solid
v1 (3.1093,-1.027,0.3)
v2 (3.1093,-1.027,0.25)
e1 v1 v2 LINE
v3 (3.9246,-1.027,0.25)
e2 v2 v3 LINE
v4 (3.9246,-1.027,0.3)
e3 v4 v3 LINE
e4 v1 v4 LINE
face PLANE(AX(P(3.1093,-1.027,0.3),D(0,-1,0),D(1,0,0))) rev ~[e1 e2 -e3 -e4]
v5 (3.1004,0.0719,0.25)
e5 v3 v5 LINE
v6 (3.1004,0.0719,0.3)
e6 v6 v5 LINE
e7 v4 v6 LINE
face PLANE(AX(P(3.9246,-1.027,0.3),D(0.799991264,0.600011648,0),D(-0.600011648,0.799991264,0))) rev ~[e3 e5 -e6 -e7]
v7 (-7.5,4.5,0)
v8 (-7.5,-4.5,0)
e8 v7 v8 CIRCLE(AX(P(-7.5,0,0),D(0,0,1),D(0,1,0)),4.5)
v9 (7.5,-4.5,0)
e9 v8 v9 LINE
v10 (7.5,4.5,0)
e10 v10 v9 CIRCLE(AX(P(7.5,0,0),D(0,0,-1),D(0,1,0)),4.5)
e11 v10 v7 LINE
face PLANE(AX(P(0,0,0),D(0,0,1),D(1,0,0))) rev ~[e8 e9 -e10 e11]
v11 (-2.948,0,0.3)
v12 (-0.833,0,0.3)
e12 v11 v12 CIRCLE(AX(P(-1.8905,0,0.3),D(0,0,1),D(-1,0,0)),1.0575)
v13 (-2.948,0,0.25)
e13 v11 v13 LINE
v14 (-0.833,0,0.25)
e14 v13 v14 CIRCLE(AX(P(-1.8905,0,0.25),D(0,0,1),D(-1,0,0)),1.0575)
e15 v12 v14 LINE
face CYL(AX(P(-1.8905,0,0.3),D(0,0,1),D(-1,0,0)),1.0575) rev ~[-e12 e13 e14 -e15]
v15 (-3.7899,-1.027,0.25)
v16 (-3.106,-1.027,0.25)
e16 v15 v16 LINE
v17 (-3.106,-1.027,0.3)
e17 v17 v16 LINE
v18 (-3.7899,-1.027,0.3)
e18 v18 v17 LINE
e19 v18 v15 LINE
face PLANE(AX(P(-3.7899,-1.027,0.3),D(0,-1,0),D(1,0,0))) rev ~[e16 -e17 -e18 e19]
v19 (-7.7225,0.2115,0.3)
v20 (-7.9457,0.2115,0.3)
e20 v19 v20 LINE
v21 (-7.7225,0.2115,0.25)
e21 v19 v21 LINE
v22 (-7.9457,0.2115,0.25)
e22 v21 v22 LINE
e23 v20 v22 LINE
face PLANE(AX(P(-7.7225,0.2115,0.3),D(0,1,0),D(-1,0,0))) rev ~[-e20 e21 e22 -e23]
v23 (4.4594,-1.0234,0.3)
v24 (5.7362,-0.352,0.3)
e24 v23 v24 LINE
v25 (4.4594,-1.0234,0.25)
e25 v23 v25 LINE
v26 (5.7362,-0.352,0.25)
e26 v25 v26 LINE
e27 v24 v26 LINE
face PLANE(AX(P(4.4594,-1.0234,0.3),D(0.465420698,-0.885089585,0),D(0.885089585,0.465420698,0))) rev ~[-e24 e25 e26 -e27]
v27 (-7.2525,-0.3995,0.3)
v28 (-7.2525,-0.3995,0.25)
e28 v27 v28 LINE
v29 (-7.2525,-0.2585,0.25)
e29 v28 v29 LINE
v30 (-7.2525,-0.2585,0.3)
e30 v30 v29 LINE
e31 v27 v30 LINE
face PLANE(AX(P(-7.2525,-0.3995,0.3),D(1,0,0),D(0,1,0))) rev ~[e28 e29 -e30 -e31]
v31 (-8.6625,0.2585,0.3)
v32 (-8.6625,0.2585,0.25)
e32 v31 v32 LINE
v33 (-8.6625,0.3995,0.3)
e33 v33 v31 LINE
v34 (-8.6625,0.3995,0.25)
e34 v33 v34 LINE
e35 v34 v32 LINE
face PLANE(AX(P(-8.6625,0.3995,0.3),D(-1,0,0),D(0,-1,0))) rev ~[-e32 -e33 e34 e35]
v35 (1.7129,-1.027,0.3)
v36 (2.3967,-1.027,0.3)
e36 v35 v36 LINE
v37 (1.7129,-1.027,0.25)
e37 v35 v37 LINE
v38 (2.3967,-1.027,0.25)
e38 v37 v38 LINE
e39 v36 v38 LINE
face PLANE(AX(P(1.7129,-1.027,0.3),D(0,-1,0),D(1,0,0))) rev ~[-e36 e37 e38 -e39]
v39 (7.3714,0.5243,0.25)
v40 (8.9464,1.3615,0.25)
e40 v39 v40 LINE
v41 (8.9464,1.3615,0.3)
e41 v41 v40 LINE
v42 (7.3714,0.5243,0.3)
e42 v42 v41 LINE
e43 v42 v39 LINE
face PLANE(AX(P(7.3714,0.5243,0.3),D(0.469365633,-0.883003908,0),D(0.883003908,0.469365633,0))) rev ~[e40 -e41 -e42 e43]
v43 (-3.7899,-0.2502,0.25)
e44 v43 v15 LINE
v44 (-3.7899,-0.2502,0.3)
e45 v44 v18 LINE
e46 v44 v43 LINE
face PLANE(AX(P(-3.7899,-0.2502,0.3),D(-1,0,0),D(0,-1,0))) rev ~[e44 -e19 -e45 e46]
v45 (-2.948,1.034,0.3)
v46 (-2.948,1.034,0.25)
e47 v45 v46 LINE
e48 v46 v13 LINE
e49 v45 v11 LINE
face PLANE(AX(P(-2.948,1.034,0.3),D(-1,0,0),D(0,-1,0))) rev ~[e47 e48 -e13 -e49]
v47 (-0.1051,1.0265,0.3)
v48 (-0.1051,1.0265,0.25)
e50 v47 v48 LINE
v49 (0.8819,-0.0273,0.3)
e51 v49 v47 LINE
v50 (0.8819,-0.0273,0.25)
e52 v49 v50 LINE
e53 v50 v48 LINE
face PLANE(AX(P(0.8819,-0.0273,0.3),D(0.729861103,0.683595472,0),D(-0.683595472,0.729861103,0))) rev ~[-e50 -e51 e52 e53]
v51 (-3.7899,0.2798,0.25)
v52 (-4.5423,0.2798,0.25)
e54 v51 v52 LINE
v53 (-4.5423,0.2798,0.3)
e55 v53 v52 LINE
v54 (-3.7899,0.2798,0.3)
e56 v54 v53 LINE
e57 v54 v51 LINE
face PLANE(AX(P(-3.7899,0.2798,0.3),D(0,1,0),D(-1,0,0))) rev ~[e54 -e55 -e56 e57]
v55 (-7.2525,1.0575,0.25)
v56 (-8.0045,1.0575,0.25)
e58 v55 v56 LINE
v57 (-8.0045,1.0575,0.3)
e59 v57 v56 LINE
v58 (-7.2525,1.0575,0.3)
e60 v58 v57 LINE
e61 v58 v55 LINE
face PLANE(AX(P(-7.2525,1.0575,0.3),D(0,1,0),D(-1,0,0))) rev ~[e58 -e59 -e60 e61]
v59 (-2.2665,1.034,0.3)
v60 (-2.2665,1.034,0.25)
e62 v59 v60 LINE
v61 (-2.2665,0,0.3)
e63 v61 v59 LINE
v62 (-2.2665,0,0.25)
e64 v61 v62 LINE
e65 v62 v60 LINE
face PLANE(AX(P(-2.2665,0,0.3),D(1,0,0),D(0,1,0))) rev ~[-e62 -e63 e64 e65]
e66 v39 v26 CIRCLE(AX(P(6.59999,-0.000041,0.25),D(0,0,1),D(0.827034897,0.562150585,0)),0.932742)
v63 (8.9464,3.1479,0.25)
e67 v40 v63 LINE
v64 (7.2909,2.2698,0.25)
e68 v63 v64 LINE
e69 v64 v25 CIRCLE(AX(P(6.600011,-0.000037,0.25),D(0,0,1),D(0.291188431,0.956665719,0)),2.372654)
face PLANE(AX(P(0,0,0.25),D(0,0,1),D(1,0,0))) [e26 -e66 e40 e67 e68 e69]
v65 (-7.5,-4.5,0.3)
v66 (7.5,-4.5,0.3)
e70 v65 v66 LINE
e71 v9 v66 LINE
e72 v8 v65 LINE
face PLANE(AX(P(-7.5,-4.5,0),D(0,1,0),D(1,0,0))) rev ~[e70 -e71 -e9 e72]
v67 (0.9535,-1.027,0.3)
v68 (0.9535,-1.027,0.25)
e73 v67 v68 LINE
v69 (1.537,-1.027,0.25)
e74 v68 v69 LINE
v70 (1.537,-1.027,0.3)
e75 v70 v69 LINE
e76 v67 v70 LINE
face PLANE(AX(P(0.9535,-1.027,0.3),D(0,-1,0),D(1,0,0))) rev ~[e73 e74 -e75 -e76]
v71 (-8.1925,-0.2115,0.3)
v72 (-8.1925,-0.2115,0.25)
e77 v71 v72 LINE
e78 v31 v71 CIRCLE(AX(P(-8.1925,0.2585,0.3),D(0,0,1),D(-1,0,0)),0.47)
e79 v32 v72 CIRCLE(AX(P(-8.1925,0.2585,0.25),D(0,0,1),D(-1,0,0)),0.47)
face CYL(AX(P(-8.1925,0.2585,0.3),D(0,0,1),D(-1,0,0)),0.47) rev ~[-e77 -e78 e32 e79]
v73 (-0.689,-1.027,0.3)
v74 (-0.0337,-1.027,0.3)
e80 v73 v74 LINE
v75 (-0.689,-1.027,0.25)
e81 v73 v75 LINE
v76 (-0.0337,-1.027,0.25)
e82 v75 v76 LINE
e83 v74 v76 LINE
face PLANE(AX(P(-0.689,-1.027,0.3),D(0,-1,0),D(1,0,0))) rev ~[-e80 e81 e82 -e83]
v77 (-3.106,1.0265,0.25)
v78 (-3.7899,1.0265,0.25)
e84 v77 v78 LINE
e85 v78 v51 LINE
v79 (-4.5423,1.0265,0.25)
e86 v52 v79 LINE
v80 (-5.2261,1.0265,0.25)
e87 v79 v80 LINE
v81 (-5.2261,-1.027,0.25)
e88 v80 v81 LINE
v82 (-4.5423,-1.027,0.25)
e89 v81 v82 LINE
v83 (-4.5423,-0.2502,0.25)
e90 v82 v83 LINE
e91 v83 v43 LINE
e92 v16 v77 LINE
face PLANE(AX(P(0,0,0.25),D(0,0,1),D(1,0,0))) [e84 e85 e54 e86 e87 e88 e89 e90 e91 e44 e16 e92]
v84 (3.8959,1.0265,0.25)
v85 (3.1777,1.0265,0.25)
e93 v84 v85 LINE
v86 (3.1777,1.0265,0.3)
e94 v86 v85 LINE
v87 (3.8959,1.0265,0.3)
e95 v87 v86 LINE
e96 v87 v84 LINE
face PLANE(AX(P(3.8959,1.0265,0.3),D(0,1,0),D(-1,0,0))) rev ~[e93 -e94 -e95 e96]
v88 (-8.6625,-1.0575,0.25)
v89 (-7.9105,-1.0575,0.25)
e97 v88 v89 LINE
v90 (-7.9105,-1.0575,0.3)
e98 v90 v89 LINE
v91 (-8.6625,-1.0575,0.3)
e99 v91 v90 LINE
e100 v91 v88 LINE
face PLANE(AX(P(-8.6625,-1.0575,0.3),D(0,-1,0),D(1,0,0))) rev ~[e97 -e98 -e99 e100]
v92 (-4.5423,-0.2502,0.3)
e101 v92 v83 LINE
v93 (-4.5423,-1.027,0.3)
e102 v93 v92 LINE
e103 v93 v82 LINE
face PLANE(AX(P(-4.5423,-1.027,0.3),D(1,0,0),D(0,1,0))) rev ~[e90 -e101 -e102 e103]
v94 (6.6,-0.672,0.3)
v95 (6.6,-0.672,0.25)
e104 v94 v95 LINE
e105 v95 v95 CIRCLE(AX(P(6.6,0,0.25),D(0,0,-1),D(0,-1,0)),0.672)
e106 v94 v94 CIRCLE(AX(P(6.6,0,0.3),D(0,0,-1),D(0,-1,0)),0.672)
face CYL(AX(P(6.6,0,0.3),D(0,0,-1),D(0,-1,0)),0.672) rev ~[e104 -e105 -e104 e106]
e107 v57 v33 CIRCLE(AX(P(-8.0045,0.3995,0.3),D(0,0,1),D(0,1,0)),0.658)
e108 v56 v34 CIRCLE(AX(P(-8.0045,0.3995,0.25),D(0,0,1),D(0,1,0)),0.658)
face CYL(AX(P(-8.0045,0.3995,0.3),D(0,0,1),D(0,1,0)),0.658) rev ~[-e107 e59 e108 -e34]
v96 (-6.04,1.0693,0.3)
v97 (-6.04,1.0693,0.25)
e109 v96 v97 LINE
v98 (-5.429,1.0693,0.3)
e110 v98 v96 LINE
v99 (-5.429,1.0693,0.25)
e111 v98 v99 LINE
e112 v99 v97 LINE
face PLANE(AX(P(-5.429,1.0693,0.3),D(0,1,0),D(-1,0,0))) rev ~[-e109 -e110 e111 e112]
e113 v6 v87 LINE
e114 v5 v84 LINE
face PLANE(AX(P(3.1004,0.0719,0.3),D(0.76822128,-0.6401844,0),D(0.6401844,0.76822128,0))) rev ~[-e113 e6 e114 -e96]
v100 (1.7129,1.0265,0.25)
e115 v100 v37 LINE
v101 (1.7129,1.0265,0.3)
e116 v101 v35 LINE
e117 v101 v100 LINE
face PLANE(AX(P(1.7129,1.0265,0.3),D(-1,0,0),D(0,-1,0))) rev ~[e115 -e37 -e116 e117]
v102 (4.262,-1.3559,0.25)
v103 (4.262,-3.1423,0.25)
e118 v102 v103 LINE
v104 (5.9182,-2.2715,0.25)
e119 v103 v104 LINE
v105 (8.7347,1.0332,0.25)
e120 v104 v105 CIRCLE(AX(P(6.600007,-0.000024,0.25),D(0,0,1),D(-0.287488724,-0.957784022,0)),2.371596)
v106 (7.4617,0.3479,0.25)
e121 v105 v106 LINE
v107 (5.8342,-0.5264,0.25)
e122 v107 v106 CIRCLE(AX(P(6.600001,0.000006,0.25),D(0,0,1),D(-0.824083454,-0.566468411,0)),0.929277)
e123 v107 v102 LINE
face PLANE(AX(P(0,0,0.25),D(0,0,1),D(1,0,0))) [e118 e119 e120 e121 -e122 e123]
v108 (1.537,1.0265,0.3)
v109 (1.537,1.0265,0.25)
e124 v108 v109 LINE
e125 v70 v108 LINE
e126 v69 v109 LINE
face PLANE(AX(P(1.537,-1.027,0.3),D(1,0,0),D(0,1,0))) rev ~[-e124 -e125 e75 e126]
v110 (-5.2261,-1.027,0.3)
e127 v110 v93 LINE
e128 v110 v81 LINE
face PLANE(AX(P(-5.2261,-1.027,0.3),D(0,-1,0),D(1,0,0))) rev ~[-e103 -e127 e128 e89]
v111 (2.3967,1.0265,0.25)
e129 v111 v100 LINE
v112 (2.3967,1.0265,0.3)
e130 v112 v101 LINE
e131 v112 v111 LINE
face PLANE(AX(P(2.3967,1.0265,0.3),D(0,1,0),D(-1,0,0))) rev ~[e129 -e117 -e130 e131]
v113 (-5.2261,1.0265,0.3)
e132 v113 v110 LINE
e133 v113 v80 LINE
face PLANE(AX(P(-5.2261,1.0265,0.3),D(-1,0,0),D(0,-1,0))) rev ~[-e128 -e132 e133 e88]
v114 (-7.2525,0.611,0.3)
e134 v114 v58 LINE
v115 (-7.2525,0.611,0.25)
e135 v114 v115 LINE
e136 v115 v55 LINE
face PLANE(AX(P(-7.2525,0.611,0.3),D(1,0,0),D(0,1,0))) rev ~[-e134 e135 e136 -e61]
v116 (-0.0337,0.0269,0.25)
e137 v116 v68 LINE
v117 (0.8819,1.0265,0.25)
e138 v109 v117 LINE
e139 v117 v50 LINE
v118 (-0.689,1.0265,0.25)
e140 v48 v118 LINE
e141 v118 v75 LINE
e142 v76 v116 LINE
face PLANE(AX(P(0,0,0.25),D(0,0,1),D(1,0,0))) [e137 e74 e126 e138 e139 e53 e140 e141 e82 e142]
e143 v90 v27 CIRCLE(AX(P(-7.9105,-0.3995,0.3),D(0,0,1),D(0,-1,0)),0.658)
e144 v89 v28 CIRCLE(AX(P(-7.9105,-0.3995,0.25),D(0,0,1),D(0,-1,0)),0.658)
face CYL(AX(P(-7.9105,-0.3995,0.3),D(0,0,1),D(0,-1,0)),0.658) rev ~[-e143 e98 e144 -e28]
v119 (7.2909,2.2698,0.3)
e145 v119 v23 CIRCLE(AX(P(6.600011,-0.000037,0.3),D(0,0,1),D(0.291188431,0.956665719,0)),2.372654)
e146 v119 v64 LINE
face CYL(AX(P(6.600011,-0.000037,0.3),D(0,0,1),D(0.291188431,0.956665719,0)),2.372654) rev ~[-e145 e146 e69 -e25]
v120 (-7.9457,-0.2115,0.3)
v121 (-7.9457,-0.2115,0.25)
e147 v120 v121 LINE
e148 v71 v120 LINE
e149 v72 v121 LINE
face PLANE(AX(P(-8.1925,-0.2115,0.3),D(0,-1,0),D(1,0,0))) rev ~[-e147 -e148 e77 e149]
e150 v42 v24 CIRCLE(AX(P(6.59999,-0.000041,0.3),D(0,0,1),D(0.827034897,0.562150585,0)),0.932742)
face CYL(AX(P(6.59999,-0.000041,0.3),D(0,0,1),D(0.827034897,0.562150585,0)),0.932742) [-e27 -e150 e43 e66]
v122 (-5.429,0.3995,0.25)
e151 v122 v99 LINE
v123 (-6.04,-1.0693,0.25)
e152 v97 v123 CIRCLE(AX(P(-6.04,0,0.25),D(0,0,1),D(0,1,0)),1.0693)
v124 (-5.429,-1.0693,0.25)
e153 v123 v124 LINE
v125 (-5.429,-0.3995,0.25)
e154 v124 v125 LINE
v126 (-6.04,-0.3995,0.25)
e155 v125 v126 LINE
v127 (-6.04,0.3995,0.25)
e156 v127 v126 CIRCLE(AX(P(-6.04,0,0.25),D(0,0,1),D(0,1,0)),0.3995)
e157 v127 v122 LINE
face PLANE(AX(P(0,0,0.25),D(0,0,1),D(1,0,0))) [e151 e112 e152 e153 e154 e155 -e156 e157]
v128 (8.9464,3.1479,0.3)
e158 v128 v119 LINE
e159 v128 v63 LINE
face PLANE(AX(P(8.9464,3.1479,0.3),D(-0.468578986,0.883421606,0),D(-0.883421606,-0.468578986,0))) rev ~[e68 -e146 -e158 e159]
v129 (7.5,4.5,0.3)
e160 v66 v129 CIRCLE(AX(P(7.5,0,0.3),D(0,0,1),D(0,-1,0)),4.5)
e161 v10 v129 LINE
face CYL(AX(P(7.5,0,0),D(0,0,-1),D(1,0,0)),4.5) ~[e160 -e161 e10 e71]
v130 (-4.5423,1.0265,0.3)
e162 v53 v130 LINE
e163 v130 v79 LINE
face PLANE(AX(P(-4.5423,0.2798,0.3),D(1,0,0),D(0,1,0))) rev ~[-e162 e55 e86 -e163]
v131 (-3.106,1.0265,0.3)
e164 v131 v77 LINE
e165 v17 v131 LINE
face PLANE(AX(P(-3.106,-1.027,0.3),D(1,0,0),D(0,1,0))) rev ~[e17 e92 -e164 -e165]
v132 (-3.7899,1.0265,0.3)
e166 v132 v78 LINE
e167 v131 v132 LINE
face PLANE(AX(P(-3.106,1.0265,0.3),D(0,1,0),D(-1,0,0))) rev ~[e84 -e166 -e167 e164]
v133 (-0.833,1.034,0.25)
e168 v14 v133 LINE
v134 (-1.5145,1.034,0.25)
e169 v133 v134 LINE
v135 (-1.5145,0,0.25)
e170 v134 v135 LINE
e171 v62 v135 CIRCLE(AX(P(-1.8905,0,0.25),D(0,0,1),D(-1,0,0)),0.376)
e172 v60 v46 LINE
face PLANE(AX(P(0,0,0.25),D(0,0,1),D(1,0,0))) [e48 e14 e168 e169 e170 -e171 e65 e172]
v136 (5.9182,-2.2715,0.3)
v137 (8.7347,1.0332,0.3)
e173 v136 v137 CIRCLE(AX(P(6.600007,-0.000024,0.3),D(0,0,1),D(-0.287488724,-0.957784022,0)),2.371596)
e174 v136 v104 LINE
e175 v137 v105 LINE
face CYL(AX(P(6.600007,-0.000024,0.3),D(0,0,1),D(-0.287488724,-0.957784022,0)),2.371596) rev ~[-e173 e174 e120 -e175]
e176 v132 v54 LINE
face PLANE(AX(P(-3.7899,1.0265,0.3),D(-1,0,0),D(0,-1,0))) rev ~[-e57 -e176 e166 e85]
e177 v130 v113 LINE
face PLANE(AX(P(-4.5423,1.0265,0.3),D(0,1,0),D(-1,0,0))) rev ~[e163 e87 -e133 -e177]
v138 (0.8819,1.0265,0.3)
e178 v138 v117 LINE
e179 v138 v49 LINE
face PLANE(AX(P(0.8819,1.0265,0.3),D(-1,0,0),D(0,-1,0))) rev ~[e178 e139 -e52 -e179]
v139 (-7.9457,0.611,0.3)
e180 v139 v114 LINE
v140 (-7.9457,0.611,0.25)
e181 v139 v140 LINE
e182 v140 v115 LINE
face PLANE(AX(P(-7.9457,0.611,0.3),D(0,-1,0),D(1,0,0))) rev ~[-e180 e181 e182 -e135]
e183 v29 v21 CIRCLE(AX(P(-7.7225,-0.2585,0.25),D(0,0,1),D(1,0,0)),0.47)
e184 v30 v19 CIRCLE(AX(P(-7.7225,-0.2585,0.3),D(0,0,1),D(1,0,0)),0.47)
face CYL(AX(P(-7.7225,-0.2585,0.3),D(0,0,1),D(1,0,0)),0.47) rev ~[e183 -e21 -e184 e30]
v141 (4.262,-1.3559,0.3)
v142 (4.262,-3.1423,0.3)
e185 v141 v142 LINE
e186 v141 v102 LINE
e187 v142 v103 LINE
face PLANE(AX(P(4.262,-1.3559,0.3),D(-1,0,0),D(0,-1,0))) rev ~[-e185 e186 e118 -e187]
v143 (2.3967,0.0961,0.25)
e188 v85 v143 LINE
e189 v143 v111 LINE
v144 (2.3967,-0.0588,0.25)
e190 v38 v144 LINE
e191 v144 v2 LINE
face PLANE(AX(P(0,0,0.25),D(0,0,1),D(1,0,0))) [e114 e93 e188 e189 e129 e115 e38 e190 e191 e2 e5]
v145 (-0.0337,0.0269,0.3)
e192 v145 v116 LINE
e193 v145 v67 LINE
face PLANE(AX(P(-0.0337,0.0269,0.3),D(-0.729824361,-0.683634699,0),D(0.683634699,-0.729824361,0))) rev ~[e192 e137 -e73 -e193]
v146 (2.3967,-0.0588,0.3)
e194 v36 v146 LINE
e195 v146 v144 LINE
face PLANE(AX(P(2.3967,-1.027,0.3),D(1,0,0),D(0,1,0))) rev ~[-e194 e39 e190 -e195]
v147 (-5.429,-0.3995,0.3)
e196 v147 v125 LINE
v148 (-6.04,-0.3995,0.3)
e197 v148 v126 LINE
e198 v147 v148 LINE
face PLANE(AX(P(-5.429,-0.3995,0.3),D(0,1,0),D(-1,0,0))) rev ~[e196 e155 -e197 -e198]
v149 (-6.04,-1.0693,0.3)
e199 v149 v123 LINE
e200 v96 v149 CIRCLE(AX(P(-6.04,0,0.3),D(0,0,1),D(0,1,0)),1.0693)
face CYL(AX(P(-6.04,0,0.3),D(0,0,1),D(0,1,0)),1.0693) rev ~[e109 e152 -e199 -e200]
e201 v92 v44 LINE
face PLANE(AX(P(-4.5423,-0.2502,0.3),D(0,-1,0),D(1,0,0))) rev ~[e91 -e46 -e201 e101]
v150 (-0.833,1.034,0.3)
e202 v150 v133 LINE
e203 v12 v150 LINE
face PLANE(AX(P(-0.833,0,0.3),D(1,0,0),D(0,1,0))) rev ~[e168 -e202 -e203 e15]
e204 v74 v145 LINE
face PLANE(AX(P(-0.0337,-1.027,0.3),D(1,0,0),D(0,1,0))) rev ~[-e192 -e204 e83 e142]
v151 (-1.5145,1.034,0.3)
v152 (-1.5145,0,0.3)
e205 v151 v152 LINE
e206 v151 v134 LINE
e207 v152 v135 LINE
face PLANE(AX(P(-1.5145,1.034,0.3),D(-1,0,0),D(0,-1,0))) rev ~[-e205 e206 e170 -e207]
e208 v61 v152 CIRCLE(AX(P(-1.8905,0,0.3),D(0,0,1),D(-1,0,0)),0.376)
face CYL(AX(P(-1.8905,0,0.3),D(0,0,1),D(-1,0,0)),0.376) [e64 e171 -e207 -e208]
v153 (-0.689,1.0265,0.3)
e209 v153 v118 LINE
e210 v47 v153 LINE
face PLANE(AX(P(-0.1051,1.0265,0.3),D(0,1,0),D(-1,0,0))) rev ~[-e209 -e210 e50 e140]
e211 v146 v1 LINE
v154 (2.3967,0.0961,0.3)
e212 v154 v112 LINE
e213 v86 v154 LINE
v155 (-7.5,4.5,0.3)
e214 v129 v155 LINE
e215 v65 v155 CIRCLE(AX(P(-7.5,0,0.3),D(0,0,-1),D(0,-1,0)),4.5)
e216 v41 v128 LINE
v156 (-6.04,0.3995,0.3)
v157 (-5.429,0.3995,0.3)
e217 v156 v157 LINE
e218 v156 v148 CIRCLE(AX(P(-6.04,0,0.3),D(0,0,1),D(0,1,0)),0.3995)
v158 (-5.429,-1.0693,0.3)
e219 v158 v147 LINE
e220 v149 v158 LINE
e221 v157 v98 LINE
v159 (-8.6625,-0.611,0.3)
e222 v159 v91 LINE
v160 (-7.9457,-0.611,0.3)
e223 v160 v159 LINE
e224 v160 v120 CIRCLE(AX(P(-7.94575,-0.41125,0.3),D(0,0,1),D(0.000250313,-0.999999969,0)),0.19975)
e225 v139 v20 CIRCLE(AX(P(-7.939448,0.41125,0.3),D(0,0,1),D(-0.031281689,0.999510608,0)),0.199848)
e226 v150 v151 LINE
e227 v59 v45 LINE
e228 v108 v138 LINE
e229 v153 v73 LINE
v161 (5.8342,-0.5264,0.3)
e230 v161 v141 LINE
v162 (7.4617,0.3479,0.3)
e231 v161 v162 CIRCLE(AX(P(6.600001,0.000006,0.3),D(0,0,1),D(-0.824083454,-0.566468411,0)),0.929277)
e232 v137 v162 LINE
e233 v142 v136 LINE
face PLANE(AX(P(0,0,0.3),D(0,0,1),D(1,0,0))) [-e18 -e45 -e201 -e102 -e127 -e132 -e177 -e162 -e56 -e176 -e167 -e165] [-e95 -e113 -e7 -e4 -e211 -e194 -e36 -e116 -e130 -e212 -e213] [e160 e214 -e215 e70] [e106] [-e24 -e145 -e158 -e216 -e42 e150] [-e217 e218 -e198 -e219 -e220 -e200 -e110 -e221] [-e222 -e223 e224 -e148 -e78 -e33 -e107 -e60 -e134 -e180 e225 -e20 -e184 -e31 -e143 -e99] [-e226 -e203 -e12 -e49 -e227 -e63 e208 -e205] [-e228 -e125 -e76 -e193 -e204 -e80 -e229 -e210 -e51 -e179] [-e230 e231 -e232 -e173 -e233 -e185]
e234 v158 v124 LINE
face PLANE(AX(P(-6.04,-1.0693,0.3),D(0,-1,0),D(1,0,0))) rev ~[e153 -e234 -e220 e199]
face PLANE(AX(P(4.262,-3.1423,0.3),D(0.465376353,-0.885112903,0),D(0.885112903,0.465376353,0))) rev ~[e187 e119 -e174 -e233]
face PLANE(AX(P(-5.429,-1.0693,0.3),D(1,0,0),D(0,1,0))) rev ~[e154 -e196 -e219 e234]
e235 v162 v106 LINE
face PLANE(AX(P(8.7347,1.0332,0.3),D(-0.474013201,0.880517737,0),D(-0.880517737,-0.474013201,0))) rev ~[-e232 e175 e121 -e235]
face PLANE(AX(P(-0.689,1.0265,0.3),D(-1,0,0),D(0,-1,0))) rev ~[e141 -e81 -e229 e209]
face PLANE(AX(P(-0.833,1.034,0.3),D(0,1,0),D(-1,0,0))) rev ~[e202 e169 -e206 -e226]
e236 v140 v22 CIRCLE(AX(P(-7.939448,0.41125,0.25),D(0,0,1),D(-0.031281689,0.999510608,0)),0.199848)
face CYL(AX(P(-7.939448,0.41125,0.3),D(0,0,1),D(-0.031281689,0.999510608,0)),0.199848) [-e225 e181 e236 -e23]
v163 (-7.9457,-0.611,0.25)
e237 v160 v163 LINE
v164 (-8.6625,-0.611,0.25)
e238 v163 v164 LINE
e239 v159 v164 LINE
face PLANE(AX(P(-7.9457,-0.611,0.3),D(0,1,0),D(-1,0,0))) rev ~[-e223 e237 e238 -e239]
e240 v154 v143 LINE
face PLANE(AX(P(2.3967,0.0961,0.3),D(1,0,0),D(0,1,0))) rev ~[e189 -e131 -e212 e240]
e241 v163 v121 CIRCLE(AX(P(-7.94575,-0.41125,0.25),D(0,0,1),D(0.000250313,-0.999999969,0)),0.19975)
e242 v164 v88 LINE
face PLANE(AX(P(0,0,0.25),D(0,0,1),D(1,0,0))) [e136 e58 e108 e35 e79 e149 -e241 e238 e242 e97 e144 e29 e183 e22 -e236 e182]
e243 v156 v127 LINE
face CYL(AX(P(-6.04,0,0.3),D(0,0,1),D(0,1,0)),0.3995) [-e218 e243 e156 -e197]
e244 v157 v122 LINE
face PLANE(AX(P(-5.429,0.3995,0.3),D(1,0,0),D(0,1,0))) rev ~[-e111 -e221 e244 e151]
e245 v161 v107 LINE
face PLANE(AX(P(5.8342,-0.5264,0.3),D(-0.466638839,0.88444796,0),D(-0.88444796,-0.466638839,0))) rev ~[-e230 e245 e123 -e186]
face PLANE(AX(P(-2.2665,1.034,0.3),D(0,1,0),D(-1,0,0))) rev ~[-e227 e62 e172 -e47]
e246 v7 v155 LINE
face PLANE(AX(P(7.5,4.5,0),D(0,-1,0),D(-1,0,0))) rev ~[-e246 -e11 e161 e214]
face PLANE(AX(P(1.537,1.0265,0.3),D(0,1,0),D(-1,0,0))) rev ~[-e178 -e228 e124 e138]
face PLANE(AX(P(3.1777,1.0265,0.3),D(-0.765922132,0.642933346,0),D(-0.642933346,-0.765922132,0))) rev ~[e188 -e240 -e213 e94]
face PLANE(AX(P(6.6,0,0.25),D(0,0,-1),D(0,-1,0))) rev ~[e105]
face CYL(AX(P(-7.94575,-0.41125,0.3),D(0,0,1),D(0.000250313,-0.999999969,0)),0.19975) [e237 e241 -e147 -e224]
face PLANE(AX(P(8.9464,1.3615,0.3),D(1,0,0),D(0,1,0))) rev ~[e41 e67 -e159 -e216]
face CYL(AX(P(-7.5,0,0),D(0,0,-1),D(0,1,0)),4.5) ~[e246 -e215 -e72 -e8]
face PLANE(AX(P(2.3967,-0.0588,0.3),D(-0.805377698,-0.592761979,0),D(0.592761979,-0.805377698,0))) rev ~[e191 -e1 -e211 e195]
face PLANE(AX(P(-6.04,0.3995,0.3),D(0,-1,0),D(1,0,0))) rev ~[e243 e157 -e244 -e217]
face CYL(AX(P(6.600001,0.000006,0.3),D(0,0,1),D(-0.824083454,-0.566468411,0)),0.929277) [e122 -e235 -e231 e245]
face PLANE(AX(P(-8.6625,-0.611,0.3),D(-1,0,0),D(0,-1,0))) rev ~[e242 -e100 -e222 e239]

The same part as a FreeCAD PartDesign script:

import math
import FreeCAD as App
import Part
import Sketcher
from FreeCAD import Vector
Q = App.Units.Quantity

doc = App.newDocument("Part")
params = doc.addObject("Spreadsheet::Sheet", "Params")
for row, (alias, value) in enumerate([
    ("sketch1_radius", "4.5 mm"),
    ("sketch1_width", "15 mm"),
    ("pad1_length", "0.3 mm"),
    ("pocket1_length", "0.05 mm"),
    ("pocket2_length", "0.05 mm"),
    ("pocket3_length", "0.05 mm"),
    ("sketch5_radius", "0.47 mm"),
    ("sketch5_radius2", "0.47 mm"),
    ("pocket4_length", "0.05 mm"),
    ("pocket5_length", "0.05 mm"),
    ("pocket6_length", "0.05 mm"),
    ("hole_diameter", "1.344 mm"),
    ("hole_depth", "0.05 mm"),
    ("pocket7_length", "0.05 mm"),
    ("pocket8_length", "0.05 mm"),
], start=1):
    params.set(f"A{row}", alias)
    params.set(f"B{row}", "=" + value)
    params.setAlias(f"B{row}", alias)

body = doc.addObject("PartDesign::Body", "Body")

# Sketch on XY plane
sketch1 = body.newObject("Sketcher::SketchObject", "Sketch")
sketch1.AttachmentSupport = (doc.getObject("XY_Plane"), [""])
sketch1.MapMode = "FlatFace"
sketch1.addGeometry([
    Part.ArcOfCircle(Part.Circle(Vector(-7.5, 0, 0), Vector(0, 0, 1), 4.5), math.radians(90), math.radians(270)),
    Part.LineSegment(Vector(-7.5, -4.5, 0), Vector(7.5, -4.5, 0)),
    Part.ArcOfCircle(Part.Circle(Vector(7.5, 0, 0), Vector(0, 0, 1), 4.5), math.radians(-90), math.radians(90)),
    Part.LineSegment(Vector(7.5, 4.5, 0), Vector(-7.5, 4.5, 0)),
], False)
sketch1.addConstraint([
    Sketcher.Constraint("Tangent", 0, 2, 1, 1),
    Sketcher.Constraint("Tangent", 1, 2, 2, 1),
    Sketcher.Constraint("Tangent", 2, 2, 3, 1),
    Sketcher.Constraint("Tangent", 3, 2, 0, 1),
    Sketcher.Constraint("Horizontal", 1),
    Sketcher.Constraint("Horizontal", 3),
    Sketcher.Constraint("Symmetric", 0, 3, 2, 3, -1, 1),
    Sketcher.Constraint("Radius", 0, Q("4.5 mm")),
    Sketcher.Constraint("DistanceX", 1, 1, 1, 2, Q("15 mm")),
])
sketch1.setExpression("Constraints[7]", "Params.sketch1_radius")
sketch1.setExpression("Constraints[8]", "Params.sketch1_width")
pad1 = body.newObject("PartDesign::Pad", "Pad")
pad1.Profile = sketch1
pad1.setExpression("Length", "Params.pad1_length")

# Sketch on XY plane
sketch2 = body.newObject("Sketcher::SketchObject", "Sketch001")
sketch2.AttachmentSupport = (doc.getObject("XY_Plane"), [""])
sketch2.MapMode = "FlatFace"
sketch2.AttachmentOffset = App.Placement(Vector(0, 0, 0.3), App.Rotation())
sketch2.addGeometry([
    Part.LineSegment(Vector(-4.5423, 1.0265, 0), Vector(-5.2261, 1.0265, 0)),  # 0
    Part.LineSegment(Vector(-5.2261, 1.0265, 0), Vector(-5.2261, -1.027, 0)),  # 1
    Part.LineSegment(Vector(-5.2261, -1.027, 0), Vector(-4.5423, -1.027, 0)),  # 2
    Part.LineSegment(Vector(-4.5423, -1.027, 0), Vector(-4.5423, -0.2502, 0)),  # 3
    Part.LineSegment(Vector(-4.5423, -0.2502, 0), Vector(-3.7899, -0.2502, 0)),  # 4
    Part.LineSegment(Vector(-3.7899, -0.2502, 0), Vector(-3.7899, -1.027, 0)),  # 5
    Part.LineSegment(Vector(-3.7899, -1.027, 0), Vector(-3.106, -1.027, 0)),  # 6
    Part.LineSegment(Vector(-3.106, -1.027, 0), Vector(-3.106, 1.0265, 0)),  # 7
    Part.LineSegment(Vector(-3.106, 1.0265, 0), Vector(-3.7899, 1.0265, 0)),  # 8
    Part.LineSegment(Vector(-3.7899, 1.0265, 0), Vector(-3.7899, 0.2798, 0)),  # 9
    Part.LineSegment(Vector(-3.7899, 0.2798, 0), Vector(-4.5423, 0.2798, 0)),  # 10
    Part.LineSegment(Vector(-4.5423, 0.2798, 0), Vector(-4.5423, 1.0265, 0)),  # 11
], False)
sketch2.addConstraint([
    Sketcher.Constraint("Coincident", 0, 2, 1, 1),
    Sketcher.Constraint("Coincident", 1, 2, 2, 1),
    Sketcher.Constraint("Coincident", 2, 2, 3, 1),
    Sketcher.Constraint("Coincident", 3, 2, 4, 1),
    Sketcher.Constraint("Coincident", 4, 2, 5, 1),
    Sketcher.Constraint("Coincident", 5, 2, 6, 1),
    Sketcher.Constraint("Coincident", 6, 2, 7, 1),
    Sketcher.Constraint("Coincident", 7, 2, 8, 1),
    Sketcher.Constraint("Coincident", 8, 2, 9, 1),
    Sketcher.Constraint("Coincident", 9, 2, 10, 1),
    Sketcher.Constraint("Coincident", 10, 2, 11, 1),
    Sketcher.Constraint("Coincident", 11, 2, 0, 1),
    Sketcher.Constraint("Horizontal", 0),
    Sketcher.Constraint("Vertical", 1),
    Sketcher.Constraint("Horizontal", 2),
    Sketcher.Constraint("Vertical", 3),
    Sketcher.Constraint("Horizontal", 4),
    Sketcher.Constraint("Vertical", 5),
    Sketcher.Constraint("Horizontal", 6),
    Sketcher.Constraint("Vertical", 7),
    Sketcher.Constraint("Horizontal", 8),
    Sketcher.Constraint("Vertical", 9),
    Sketcher.Constraint("Horizontal", 10),
    Sketcher.Constraint("Vertical", 11),
    Sketcher.Constraint("Horizontal", 2, 2, 5, 2),
    Sketcher.Constraint("Horizontal", 0, 2, 7, 2),
    Sketcher.Constraint("Vertical", 5, 2, 8, 2),
    Sketcher.Constraint("Vertical", 3, 2, 10, 2),
    Sketcher.Constraint("Equal", 2, 6),
    Sketcher.Constraint("DistanceX", 6, 1, 6, 2, Q("0.684 mm")),
    Sketcher.Constraint("DistanceX", 4, 2, -1, 1, Q("3.79 mm")),
    Sketcher.Constraint("DistanceX", 1, 2, 6, 2, Q("2.12 mm")),
    Sketcher.Constraint("DistanceY", 4, 2, 9, 2, Q("0.53 mm")),
    Sketcher.Constraint("DistanceY", 1, 2, 1, 1, Q("2.0535 mm")),
    Sketcher.Constraint("DistanceY", 3, 1, 3, 2, Q("0.7768 mm")),
    Sketcher.Constraint("DistanceY", 1, 2, -1, 1, Q("1.027 mm")),
])
pocket1 = body.newObject("PartDesign::Pocket", "Pocket")
pocket1.Profile = sketch2
pocket1.setExpression("Length", "Params.pocket1_length")

# Sketch on XY plane
sketch3 = body.newObject("Sketcher::SketchObject", "Sketch002")
sketch3.AttachmentSupport = (doc.getObject("XY_Plane"), [""])
sketch3.MapMode = "FlatFace"
sketch3.AttachmentOffset = App.Placement(Vector(0, 0, 0.3), App.Rotation())
sketch3.addGeometry([
    Part.LineSegment(Vector(-0.1051, 1.0265, 0), Vector(-0.689, 1.0265, 0)),  # 0
    Part.LineSegment(Vector(-0.689, 1.0265, 0), Vector(-0.689, -1.027, 0)),  # 1
    Part.LineSegment(Vector(-0.689, -1.027, 0), Vector(-0.0337, -1.027, 0)),  # 2
    Part.LineSegment(Vector(-0.0337, -1.027, 0), Vector(-0.0337, 0.0269, 0)),  # 3
    Part.LineSegment(Vector(-0.0337, 0.0269, 0), Vector(0.9535, -1.027, 0)),  # 4
    Part.LineSegment(Vector(0.9535, -1.027, 0), Vector(1.537, -1.027, 0)),  # 5
    Part.LineSegment(Vector(1.537, -1.027, 0), Vector(1.537, 1.0265, 0)),  # 6
    Part.LineSegment(Vector(1.537, 1.0265, 0), Vector(0.8819, 1.0265, 0)),  # 7
    Part.LineSegment(Vector(0.8819, 1.0265, 0), Vector(0.8819, -0.0273, 0)),  # 8
    Part.LineSegment(Vector(0.8819, -0.0273, 0), Vector(-0.1051, 1.0265, 0)),  # 9
], False)
sketch3.addConstraint([
    Sketcher.Constraint("Coincident", 0, 2, 1, 1),
    Sketcher.Constraint("Coincident", 1, 2, 2, 1),
    Sketcher.Constraint("Coincident", 2, 2, 3, 1),
    Sketcher.Constraint("Coincident", 3, 2, 4, 1),
    Sketcher.Constraint("Coincident", 4, 2, 5, 1),
    Sketcher.Constraint("Coincident", 5, 2, 6, 1),
    Sketcher.Constraint("Coincident", 6, 2, 7, 1),
    Sketcher.Constraint("Coincident", 7, 2, 8, 1),
    Sketcher.Constraint("Coincident", 8, 2, 9, 1),
    Sketcher.Constraint("Coincident", 9, 2, 0, 1),
    Sketcher.Constraint("Horizontal", 0),
    Sketcher.Constraint("Vertical", 1),
    Sketcher.Constraint("Horizontal", 2),
    Sketcher.Constraint("Vertical", 3),
    Sketcher.Constraint("Horizontal", 5),
    Sketcher.Constraint("Vertical", 6),
    Sketcher.Constraint("Horizontal", 7),
    Sketcher.Constraint("Vertical", 8),
    Sketcher.Constraint("Parallel", 4, 9),
    Sketcher.Constraint("Horizontal", 2, 2, 4, 2),
    Sketcher.Constraint("Horizontal", 0, 2, 6, 2),
    Sketcher.Constraint("Equal", 3, 8),
    Sketcher.Constraint("DistanceX", 0, 2, 0, 1, Q("0.584 mm")),
    Sketcher.Constraint("DistanceX", 7, 2, 7, 1, Q("0.655 mm")),
    Sketcher.Constraint("DistanceY", 3, 1, 3, 2, Q("1.054 mm")),
    Sketcher.Constraint("Distance", 4, Q("1.444 mm")),
    Sketcher.Constraint("DistanceX", 2, 1, 2, 2, Q("0.6553 mm")),
    Sketcher.Constraint("DistanceY", 1, 2, 1, 1, Q("2.0535 mm")),
    Sketcher.Constraint("DistanceX", 0, 2, -1, 1, Q("0.689 mm")),
    Sketcher.Constraint("DistanceY", 1, 2, -1, 1, Q("1.027 mm")),
])
pocket2 = body.newObject("PartDesign::Pocket", "Pocket001")
pocket2.Profile = sketch3
pocket2.setExpression("Length", "Params.pocket2_length")

# Sketch on XY plane
sketch4 = body.newObject("Sketcher::SketchObject", "Sketch003")
sketch4.AttachmentSupport = (doc.getObject("XY_Plane"), [""])
sketch4.MapMode = "FlatFace"
sketch4.AttachmentOffset = App.Placement(Vector(0, 0, 0.3), App.Rotation())
sketch4.addGeometry([
    Part.LineSegment(Vector(2.3967, 1.0265, 0), Vector(1.7129, 1.0265, 0)),  # 0
    Part.LineSegment(Vector(1.7129, 1.0265, 0), Vector(1.7129, -1.027, 0)),  # 1
    Part.LineSegment(Vector(1.7129, -1.027, 0), Vector(2.3967, -1.027, 0)),  # 2
    Part.LineSegment(Vector(2.3967, -1.027, 0), Vector(2.3967, -0.0588, 0)),  # 3
    Part.LineSegment(Vector(2.3967, -0.0588, 0), Vector(3.1093, -1.027, 0)),  # 4
    Part.LineSegment(Vector(3.1093, -1.027, 0), Vector(3.9246, -1.027, 0)),  # 5
    Part.LineSegment(Vector(3.9246, -1.027, 0), Vector(3.1004, 0.0719, 0)),  # 6
    Part.LineSegment(Vector(3.1004, 0.0719, 0), Vector(3.8959, 1.0265, 0)),  # 7
    Part.LineSegment(Vector(3.8959, 1.0265, 0), Vector(3.1777, 1.0265, 0)),  # 8
    Part.LineSegment(Vector(3.1777, 1.0265, 0), Vector(2.3967, 0.0961, 0)),  # 9
    Part.LineSegment(Vector(2.3967, 0.0961, 0), Vector(2.3967, 1.0265, 0)),  # 10
], False)
sketch4.addConstraint([
    Sketcher.Constraint("Coincident", 0, 2, 1, 1),
    Sketcher.Constraint("Coincident", 1, 2, 2, 1),
    Sketcher.Constraint("Coincident", 2, 2, 3, 1),
    Sketcher.Constraint("Coincident", 3, 2, 4, 1),
    Sketcher.Constraint("Coincident", 4, 2, 5, 1),
    Sketcher.Constraint("Coincident", 5, 2, 6, 1),
    Sketcher.Constraint("Coincident", 6, 2, 7, 1),
    Sketcher.Constraint("Coincident", 7, 2, 8, 1),
    Sketcher.Constraint("Coincident", 8, 2, 9, 1),
    Sketcher.Constraint("Coincident", 9, 2, 10, 1),
    Sketcher.Constraint("Coincident", 10, 2, 0, 1),
    Sketcher.Constraint("Horizontal", 0),
    Sketcher.Constraint("Vertical", 1),
    Sketcher.Constraint("Horizontal", 2),
    Sketcher.Constraint("Vertical", 3),
    Sketcher.Constraint("Horizontal", 5),
    Sketcher.Constraint("Horizontal", 8),
    Sketcher.Constraint("Vertical", 10),
    Sketcher.Constraint("Horizontal", 2, 2, 4, 2),
    Sketcher.Constraint("Horizontal", 0, 2, 7, 2),
    Sketcher.Constraint("Vertical", 3, 2, 9, 2),
    Sketcher.Constraint("Angle", 6, Q("126.8707 deg")),
    Sketcher.Constraint("Angle", 9, Q("-130.011 deg")),
    Sketcher.Constraint("DistanceX", 0, 2, 0, 1, Q("0.6838 mm")),
    Sketcher.Constraint("DistanceX", 5, 1, 5, 2, Q("0.8153 mm")),
    Sketcher.Constraint("DistanceX", 8, 2, 8, 1, Q("0.7182 mm")),
    Sketcher.Constraint("DistanceY", 1, 2, 1, 1, Q("2.0535 mm")),
    Sketcher.Constraint("DistanceY", 3, 1, 3, 2, Q("0.9682 mm")),
    Sketcher.Constraint("DistanceY", 10, 1, 10, 2, Q("0.9304 mm")),
    Sketcher.Constraint("DistanceX", -1, 1, 0, 2, Q("1.713 mm")),
    Sketcher.Constraint("DistanceY", 1, 2, -1, 1, Q("1.027 mm")),
    Sketcher.Constraint("DistanceY", -1, 1, 6, 2, Q("0.072 mm")),
    Sketcher.Constraint("DistanceX", 2, 2, 5, 2, Q("1.528 mm")),
])
pocket3 = body.newObject("PartDesign::Pocket", "Pocket002")
pocket3.Profile = sketch4
pocket3.setExpression("Length", "Params.pocket3_length")

# Sketch on XY plane
sketch5 = body.newObject("Sketcher::SketchObject", "Sketch004")
sketch5.AttachmentSupport = (doc.getObject("XY_Plane"), [""])
sketch5.MapMode = "FlatFace"
sketch5.AttachmentOffset = App.Placement(Vector(0, 0, 0.3), App.Rotation())
sketch5.addGeometry([
    Part.LineSegment(Vector(-8.6625, 0.3995, 0), Vector(-8.6625, 0.2585, 0)),  # 0
    Part.ArcOfCircle(Part.Circle(Vector(-8.1925, 0.2585, 0), Vector(0, 0, 1), 0.47), math.radians(180), math.radians(270)),  # 1
    Part.LineSegment(Vector(-8.1925, -0.2115, 0), Vector(-7.9457, -0.2115, 0)),  # 2
    Part.ArcOfCircle(Part.Circle(Vector(-7.9457, -0.4113, 0), Vector(0, 0, 1), 0.1997), math.radians(-90), math.radians(90)),  # 3
    Part.LineSegment(Vector(-7.9457, -0.611, 0), Vector(-8.6625, -0.611, 0)),  # 4
    Part.LineSegment(Vector(-8.6625, -0.611, 0), Vector(-8.6625, -1.0575, 0)),  # 5
    Part.LineSegment(Vector(-8.6625, -1.0575, 0), Vector(-7.9105, -1.0575, 0)),  # 6
    Part.ArcOfCircle(Part.Circle(Vector(-7.9105, -0.3995, 0), Vector(0, 0, 1), 0.658), math.radians(-90), math.radians(0)),  # 7
    Part.LineSegment(Vector(-7.2525, -0.3995, 0), Vector(-7.2525, -0.2585, 0)),  # 8
    Part.ArcOfCircle(Part.Circle(Vector(-7.7225, -0.2585, 0), Vector(0, 0, 1), 0.47), math.radians(0), math.radians(90)),  # 9
    Part.LineSegment(Vector(-7.7225, 0.2115, 0), Vector(-7.9457, 0.2115, 0)),  # 10
    Part.ArcOfCircle(Part.Circle(Vector(-7.9395, 0.4113, 0), Vector(0, 0, 1), 0.199796), math.radians(91.778266), math.radians(268.222623)),  # 11
    Part.LineSegment(Vector(-7.9457, 0.611, 0), Vector(-7.2525, 0.611, 0)),  # 12
    Part.LineSegment(Vector(-7.2525, 0.611, 0), Vector(-7.2525, 1.0575, 0)),  # 13
    Part.LineSegment(Vector(-7.2525, 1.0575, 0), Vector(-8.0045, 1.0575, 0)),  # 14
    Part.ArcOfCircle(Part.Circle(Vector(-8.0045, 0.3995, 0), Vector(0, 0, 1), 0.658), math.radians(90), math.radians(180)),  # 15
], False)
sketch5.addConstraint([
    Sketcher.Constraint("Coincident", 0, 2, 1, 1),
    Sketcher.Constraint("Coincident", 1, 2, 2, 1),
    Sketcher.Constraint("Coincident", 2, 2, 3, 2),
    Sketcher.Constraint("Coincident", 3, 1, 4, 1),
    Sketcher.Constraint("Coincident", 4, 2, 5, 1),
    Sketcher.Constraint("Coincident", 5, 2, 6, 1),
    Sketcher.Constraint("Coincident", 6, 2, 7, 1),
    Sketcher.Constraint("Coincident", 7, 2, 8, 1),
    Sketcher.Constraint("Coincident", 8, 2, 9, 1),
    Sketcher.Constraint("Coincident", 9, 2, 10, 1),
    Sketcher.Constraint("Coincident", 10, 2, 11, 2),
    Sketcher.Constraint("Coincident", 11, 1, 12, 1),
    Sketcher.Constraint("Coincident", 12, 2, 13, 1),
    Sketcher.Constraint("Coincident", 13, 2, 14, 1),
    Sketcher.Constraint("Coincident", 14, 2, 15, 1),
    Sketcher.Constraint("Coincident", 15, 2, 0, 1),
    Sketcher.Constraint("Vertical", 0),
    Sketcher.Constraint("Horizontal", 2),
    Sketcher.Constraint("Horizontal", 4),
    Sketcher.Constraint("Vertical", 5),
    Sketcher.Constraint("Horizontal", 6),
    Sketcher.Constraint("Vertical", 8),
    Sketcher.Constraint("Horizontal", 10),
    Sketcher.Constraint("Horizontal", 12),
    Sketcher.Constraint("Vertical", 13),
    Sketcher.Constraint("Horizontal", 14),
    Sketcher.Constraint("Radius", 1, Q("0.47 mm")),
    Sketcher.Constraint("Radius", 9, Q("0.47 mm")),
    Sketcher.Constraint("Radius", 7, Q("0.658 mm")),
    Sketcher.Constraint("Radius", 15, Q("0.658 mm")),
    Sketcher.Constraint("Radius", 3, Q("0.1997 mm")),
    Sketcher.Constraint("Radius", 11, Q("0.1998 mm")),
    Sketcher.Constraint("DistanceX", 6, 1, 6, 2, Q("0.752 mm")),
    Sketcher.Constraint("DistanceX", 14, 2, 14, 1, Q("0.752 mm")),
    Sketcher.Constraint("DistanceY", 0, 2, 0, 1, Q("0.141 mm")),
    Sketcher.Constraint("DistanceY", 8, 1, 8, 2, Q("0.141 mm")),
    Sketcher.Constraint("DistanceX", 1, 3, 9, 3, Q("0.47 mm")),
    Sketcher.Constraint("DistanceX", 1, 2, 9, 3, Q("0.47 mm")),
    Sketcher.Constraint("DistanceX", 4, 2, 1, 2, Q("0.47 mm")),
    Sketcher.Constraint("DistanceX", 1, 3, 9, 2, Q("0.47 mm")),
    Sketcher.Constraint("DistanceX", 9, 2, 12, 2, Q("0.47 mm")),
    Sketcher.Constraint("DistanceX", 2, 1, 2, 2, Q("0.2468 mm")),
    Sketcher.Constraint("DistanceX", 4, 2, 4, 1, Q("0.7168 mm")),
    Sketcher.Constraint("DistanceX", 10, 2, 10, 1, Q("0.2232 mm")),
    Sketcher.Constraint("DistanceX", 12, 1, 12, 2, Q("0.6932 mm")),
    Sketcher.Constraint("DistanceY", 5, 2, 5, 1, Q("0.4465 mm")),
    Sketcher.Constraint("DistanceY", 13, 1, 13, 2, Q("0.4465 mm")),
    Sketcher.Constraint("DistanceY", 3, 1, -1, 1, Q("0.611 mm")),
    Sketcher.Constraint("DistanceY", -1, 1, 11, 1, Q("0.611 mm")),
    Sketcher.Constraint("DistanceY", 7, 3, 9, 3, Q("0.141 mm")),
    Sketcher.Constraint("DistanceY", 0, 2, 15, 3, Q("0.141 mm")),
    Sketcher.Constraint("DistanceY", 7, 2, 9, 3, Q("0.141 mm")),
    Sketcher.Constraint("DistanceX", 1, 3, -1, 1, Q("8.1925 mm")),
    Sketcher.Constraint("DistanceX", 3, 3, -1, 1, Q("7.9457 mm")),
])
sketch5.setExpression("Constraints[26]", "Params.sketch5_radius")
sketch5.setExpression("Constraints[27]", "Params.sketch5_radius2")
pocket4 = body.newObject("PartDesign::Pocket", "Pocket003")
pocket4.Profile = sketch5
pocket4.setExpression("Length", "Params.pocket4_length")

# Sketch on XY plane
sketch6 = body.newObject("Sketcher::SketchObject", "Sketch005")
sketch6.AttachmentSupport = (doc.getObject("XY_Plane"), [""])
sketch6.MapMode = "FlatFace"
sketch6.AttachmentOffset = App.Placement(Vector(0, 0, 0.3), App.Rotation())
sketch6.addGeometry([
    Part.LineSegment(Vector(-5.429, 1.0693, 0), Vector(-6.04, 1.0693, 0)),  # 0
    Part.ArcOfCircle(Part.Circle(Vector(-6.04, 0, 0), Vector(0, 0, 1), 1.0693), math.radians(90), math.radians(270)),  # 1
    Part.LineSegment(Vector(-6.04, -1.0693, 0), Vector(-5.429, -1.0693, 0)),  # 2
    Part.LineSegment(Vector(-5.429, -1.0693, 0), Vector(-5.429, -0.3995, 0)),  # 3
    Part.LineSegment(Vector(-5.429, -0.3995, 0), Vector(-6.04, -0.3995, 0)),  # 4
    Part.ArcOfCircle(Part.Circle(Vector(-6.04, 0, 0), Vector(0, 0, 1), 0.3995), math.radians(90), math.radians(270)),  # 5
    Part.LineSegment(Vector(-6.04, 0.3995, 0), Vector(-5.429, 0.3995, 0)),  # 6
    Part.LineSegment(Vector(-5.429, 0.3995, 0), Vector(-5.429, 1.0693, 0)),  # 7
], False)
sketch6.addConstraint([
    Sketcher.Constraint("Tangent", 0, 2, 1, 1),
    Sketcher.Constraint("Tangent", 1, 2, 2, 1),
    Sketcher.Constraint("Coincident", 2, 2, 3, 1),
    Sketcher.Constraint("Coincident", 3, 2, 4, 1),
    Sketcher.Constraint("Tangent", 4, 2, 5, 2),
    Sketcher.Constraint("Tangent", 5, 1, 6, 1),
    Sketcher.Constraint("Coincident", 6, 2, 7, 1),
    Sketcher.Constraint("Coincident", 7, 2, 0, 1),
    Sketcher.Constraint("Horizontal", 0),
    Sketcher.Constraint("Horizontal", 2),
    Sketcher.Constraint("Vertical", 3),
    Sketcher.Constraint("Horizontal", 4),
    Sketcher.Constraint("Horizontal", 6),
    Sketcher.Constraint("Vertical", 7),
    Sketcher.Constraint("Coincident", 5, 3, 1, 3),
    Sketcher.Constraint("Symmetric", 3, 2, 6, 2, -1),
    Sketcher.Constraint("Radius", 1, Q("1.0693 mm")),
    Sketcher.Constraint("Radius", 5, Q("0.3995 mm")),
    Sketcher.Constraint("DistanceX", 0, 2, 0, 1, Q("0.611 mm")),
    Sketcher.Constraint("DistanceX", 1, 3, -1, 1, Q("6.04 mm")),
])
pocket5 = body.newObject("PartDesign::Pocket", "Pocket004")
pocket5.Profile = sketch6
pocket5.setExpression("Length", "Params.pocket5_length")

# Sketch on XY plane
sketch7 = body.newObject("Sketcher::SketchObject", "Sketch006")
sketch7.AttachmentSupport = (doc.getObject("XY_Plane"), [""])
sketch7.MapMode = "FlatFace"
sketch7.AttachmentOffset = App.Placement(Vector(0, 0, 0.3), App.Rotation())
sketch7.addGeometry([
    Part.LineSegment(Vector(-2.2665, 1.034, 0), Vector(-2.948, 1.034, 0)),  # 0
    Part.LineSegment(Vector(-2.948, 1.034, 0), Vector(-2.948, 0, 0)),  # 1
    Part.ArcOfCircle(Part.Circle(Vector(-1.8905, 0, 0), Vector(0, 0, 1), 1.0575), math.radians(180), math.radians(360)),  # 2
    Part.LineSegment(Vector(-0.833, 0, 0), Vector(-0.833, 1.034, 0)),  # 3
    Part.LineSegment(Vector(-0.833, 1.034, 0), Vector(-1.5145, 1.034, 0)),  # 4
    Part.LineSegment(Vector(-1.5145, 1.034, 0), Vector(-1.5145, 0, 0)),  # 5
    Part.ArcOfCircle(Part.Circle(Vector(-1.8905, 0, 0), Vector(0, 0, 1), 0.376), math.radians(180), math.radians(360)),  # 6
    Part.LineSegment(Vector(-2.2665, 0, 0), Vector(-2.2665, 1.034, 0)),  # 7
], False)
sketch7.addConstraint([
    Sketcher.Constraint("Coincident", 0, 2, 1, 1),
    Sketcher.Constraint("Tangent", 1, 2, 2, 1),
    Sketcher.Constraint("Tangent", 2, 2, 3, 1),
    Sketcher.Constraint("Coincident", 3, 2, 4, 1),
    Sketcher.Constraint("Coincident", 4, 2, 5, 1),
    Sketcher.Constraint("Tangent", 5, 2, 6, 2),
    Sketcher.Constraint("Tangent", 6, 1, 7, 1),
    Sketcher.Constraint("Coincident", 7, 2, 0, 1),
    Sketcher.Constraint("Horizontal", 0),
    Sketcher.Constraint("Vertical", 1),
    Sketcher.Constraint("Vertical", 3),
    Sketcher.Constraint("Horizontal", 4),
    Sketcher.Constraint("Vertical", 5),
    Sketcher.Constraint("Vertical", 7),
    Sketcher.Constraint("Coincident", 6, 3, 2, 3),
    Sketcher.Constraint("PointOnObject", 2, 3, -1),
    Sketcher.Constraint("Horizontal", 0, 2, 3, 2),
    Sketcher.Constraint("Radius", 6, Q("0.376 mm")),
    Sketcher.Constraint("Radius", 2, Q("1.0575 mm")),
    Sketcher.Constraint("DistanceY", 1, 2, 1, 1, Q("1.034 mm")),
    Sketcher.Constraint("DistanceX", 0, 2, -1, 1, Q("2.948 mm")),
])
pocket6 = body.newObject("PartDesign::Pocket", "Pocket005")
pocket6.Profile = sketch7
pocket6.setExpression("Length", "Params.pocket6_length")

# Sketch on XY plane
sketch8 = body.newObject("Sketcher::SketchObject", "Sketch007")
sketch8.AttachmentSupport = (doc.getObject("XY_Plane"), [""])
sketch8.MapMode = "FlatFace"
sketch8.AttachmentOffset = App.Placement(Vector(0, 0, 0.3), App.Rotation())
sketch8.addGeometry(Part.Circle(Vector(6.6, 0, 0), Vector(0, 0, 1), 0.672), False)
sketch8.addConstraint([
    Sketcher.Constraint("PointOnObject", 0, 3, -1),
    Sketcher.Constraint("Diameter", 0, Q("1.344 mm")),
    Sketcher.Constraint("DistanceX", -1, 1, 0, 3, Q("6.6 mm")),
])
doc.recompute()
hole = body.newObject("PartDesign::Hole", "Hole")
hole.Profile = sketch8
hole.ThreadType = "None"
hole.setExpression("Diameter", "Params.hole_diameter")
hole.DepthType = "Dimension"
hole.setExpression("Depth", "Params.hole_depth")
hole.DrillPoint = "Flat"

# Sketch on XY plane
sketch9 = body.newObject("Sketcher::SketchObject", "Sketch008")
sketch9.AttachmentSupport = (doc.getObject("XY_Plane"), [""])
sketch9.MapMode = "FlatFace"
sketch9.AttachmentOffset = App.Placement(Vector(0, 0, 0.3), App.Rotation())
sketch9.addGeometry([
    Part.LineSegment(Vector(8.9464, 3.1479, 0), Vector(7.2909, 2.2698, 0)),  # 0
    Part.ArcOfCircle(Part.Circle(Vector(6.6, 0, 0), Vector(0, 0, 1), 2.372622), math.radians(73.070378), math.radians(205.552009)),  # 1
    Part.LineSegment(Vector(4.4594, -1.0234, 0), Vector(5.7362, -0.352, 0)),  # 2
    Part.ArcOfCircle(Part.Circle(Vector(6.6, 0, 0), Vector(0, 0, 1), 0.93271), math.radians(34.202901), math.radians(202.170981)),  # 3
    Part.LineSegment(Vector(7.3714, 0.5243, 0), Vector(8.9464, 1.3615, 0)),  # 4
    Part.LineSegment(Vector(8.9464, 1.3615, 0), Vector(8.9464, 3.1479, 0)),  # 5
], False)
sketch9.addConstraint([
    Sketcher.Constraint("Coincident", 0, 2, 1, 1),
    Sketcher.Constraint("Coincident", 1, 2, 2, 1),
    Sketcher.Constraint("Coincident", 2, 2, 3, 2),
    Sketcher.Constraint("Coincident", 3, 1, 4, 1),
    Sketcher.Constraint("Coincident", 4, 2, 5, 1),
    Sketcher.Constraint("Coincident", 5, 2, 0, 1),
    Sketcher.Constraint("Vertical", 5),
    Sketcher.Constraint("Coincident", 3, 3, 1, 3),
    Sketcher.Constraint("PointOnObject", 1, 3, -1),
    Sketcher.Constraint("DistanceX", -1, 1, 1, 3, Q("6.6 mm")),
    Sketcher.Constraint("Radius", 1, Q("2.3726 mm")),
    Sketcher.Constraint("Radius", 3, Q("0.9327 mm")),
    Sketcher.Constraint("Distance", 0, Q("1.874 mm")),
    Sketcher.Constraint("DistanceY", 5, 1, 5, 2, Q("1.7864 mm")),
    Sketcher.Constraint("DistanceX", -1, 1, 0, 2, Q("7.291 mm")),
    Sketcher.Constraint("DistanceY", 2, 2, -1, 1, Q("0.352 mm")),
    Sketcher.Constraint("DistanceY", -1, 1, 5, 2, Q("3.148 mm")),
    Sketcher.Constraint("DistanceX", 1, 2, 3, 1, Q("2.912 mm")),
    Sketcher.Constraint("DistanceX", 3, 1, 4, 2, Q("1.575 mm")),
])
pocket7 = body.newObject("PartDesign::Pocket", "Pocket006")
pocket7.Profile = sketch9
pocket7.setExpression("Length", "Params.pocket7_length")

# Sketch on XY plane
sketch10 = body.newObject("Sketcher::SketchObject", "Sketch009")
sketch10.AttachmentSupport = (doc.getObject("XY_Plane"), [""])
sketch10.MapMode = "FlatFace"
sketch10.AttachmentOffset = App.Placement(Vector(0, 0, 0.3), App.Rotation())
sketch10.addGeometry([
    Part.LineSegment(Vector(5.8342, -0.5264, 0), Vector(4.262, -1.3559, 0)),  # 0
    Part.LineSegment(Vector(4.262, -1.3559, 0), Vector(4.262, -3.1423, 0)),  # 1
    Part.LineSegment(Vector(4.262, -3.1423, 0), Vector(5.9182, -2.2715, 0)),  # 2
    Part.ArcOfCircle(Part.Circle(Vector(6.6, 0, 0), Vector(0, 0, 1), 2.371616), math.radians(-106.707343), math.radians(25.827095)),  # 3
    Part.LineSegment(Vector(8.7347, 1.0332, 0), Vector(7.4617, 0.3479, 0)),  # 4
    Part.ArcOfCircle(Part.Circle(Vector(6.6, 0, 0), Vector(0, 0, 1), 0.929272), math.radians(-145.495923), math.radians(21.985743)),  # 5
], False)
sketch10.addConstraint([
    Sketcher.Constraint("Coincident", 0, 2, 1, 1),
    Sketcher.Constraint("Coincident", 1, 2, 2, 1),
    Sketcher.Constraint("Coincident", 2, 2, 3, 1),
    Sketcher.Constraint("Coincident", 3, 2, 4, 1),
    Sketcher.Constraint("Coincident", 4, 2, 5, 2),
    Sketcher.Constraint("Coincident", 5, 1, 0, 1),
    Sketcher.Constraint("Vertical", 1),
    Sketcher.Constraint("Coincident", 5, 3, 3, 3),
    Sketcher.Constraint("PointOnObject", 3, 3, -1),
    Sketcher.Constraint("DistanceX", -1, 1, 3, 3, Q("6.6 mm")),
    Sketcher.Constraint("Radius", 3, Q("2.3716 mm")),
    Sketcher.Constraint("Radius", 5, Q("0.9293 mm")),
    Sketcher.Constraint("DistanceY", 1, 2, 1, 1, Q("1.7864 mm")),
    Sketcher.Constraint("DistanceX", -1, 1, 0, 2, Q("4.262 mm")),
    Sketcher.Constraint("DistanceY", 0, 2, -1, 1, Q("1.356 mm")),
    Sketcher.Constraint("DistanceY", -1, 1, 4, 2, Q("0.348 mm")),
    Sketcher.Constraint("DistanceY", 0, 2, 3, 2, Q("2.389 mm")),
    Sketcher.Constraint("DistanceX", 5, 1, 2, 2, Q("0.084 mm")),
    Sketcher.Constraint("DistanceY", 2, 2, 5, 1, Q("1.745 mm")),
])
pocket8 = body.newObject("PartDesign::Pocket", "Pocket007")
pocket8.Profile = sketch10
pocket8.setExpression("Length", "Params.pocket8_length")

doc.recompute()
